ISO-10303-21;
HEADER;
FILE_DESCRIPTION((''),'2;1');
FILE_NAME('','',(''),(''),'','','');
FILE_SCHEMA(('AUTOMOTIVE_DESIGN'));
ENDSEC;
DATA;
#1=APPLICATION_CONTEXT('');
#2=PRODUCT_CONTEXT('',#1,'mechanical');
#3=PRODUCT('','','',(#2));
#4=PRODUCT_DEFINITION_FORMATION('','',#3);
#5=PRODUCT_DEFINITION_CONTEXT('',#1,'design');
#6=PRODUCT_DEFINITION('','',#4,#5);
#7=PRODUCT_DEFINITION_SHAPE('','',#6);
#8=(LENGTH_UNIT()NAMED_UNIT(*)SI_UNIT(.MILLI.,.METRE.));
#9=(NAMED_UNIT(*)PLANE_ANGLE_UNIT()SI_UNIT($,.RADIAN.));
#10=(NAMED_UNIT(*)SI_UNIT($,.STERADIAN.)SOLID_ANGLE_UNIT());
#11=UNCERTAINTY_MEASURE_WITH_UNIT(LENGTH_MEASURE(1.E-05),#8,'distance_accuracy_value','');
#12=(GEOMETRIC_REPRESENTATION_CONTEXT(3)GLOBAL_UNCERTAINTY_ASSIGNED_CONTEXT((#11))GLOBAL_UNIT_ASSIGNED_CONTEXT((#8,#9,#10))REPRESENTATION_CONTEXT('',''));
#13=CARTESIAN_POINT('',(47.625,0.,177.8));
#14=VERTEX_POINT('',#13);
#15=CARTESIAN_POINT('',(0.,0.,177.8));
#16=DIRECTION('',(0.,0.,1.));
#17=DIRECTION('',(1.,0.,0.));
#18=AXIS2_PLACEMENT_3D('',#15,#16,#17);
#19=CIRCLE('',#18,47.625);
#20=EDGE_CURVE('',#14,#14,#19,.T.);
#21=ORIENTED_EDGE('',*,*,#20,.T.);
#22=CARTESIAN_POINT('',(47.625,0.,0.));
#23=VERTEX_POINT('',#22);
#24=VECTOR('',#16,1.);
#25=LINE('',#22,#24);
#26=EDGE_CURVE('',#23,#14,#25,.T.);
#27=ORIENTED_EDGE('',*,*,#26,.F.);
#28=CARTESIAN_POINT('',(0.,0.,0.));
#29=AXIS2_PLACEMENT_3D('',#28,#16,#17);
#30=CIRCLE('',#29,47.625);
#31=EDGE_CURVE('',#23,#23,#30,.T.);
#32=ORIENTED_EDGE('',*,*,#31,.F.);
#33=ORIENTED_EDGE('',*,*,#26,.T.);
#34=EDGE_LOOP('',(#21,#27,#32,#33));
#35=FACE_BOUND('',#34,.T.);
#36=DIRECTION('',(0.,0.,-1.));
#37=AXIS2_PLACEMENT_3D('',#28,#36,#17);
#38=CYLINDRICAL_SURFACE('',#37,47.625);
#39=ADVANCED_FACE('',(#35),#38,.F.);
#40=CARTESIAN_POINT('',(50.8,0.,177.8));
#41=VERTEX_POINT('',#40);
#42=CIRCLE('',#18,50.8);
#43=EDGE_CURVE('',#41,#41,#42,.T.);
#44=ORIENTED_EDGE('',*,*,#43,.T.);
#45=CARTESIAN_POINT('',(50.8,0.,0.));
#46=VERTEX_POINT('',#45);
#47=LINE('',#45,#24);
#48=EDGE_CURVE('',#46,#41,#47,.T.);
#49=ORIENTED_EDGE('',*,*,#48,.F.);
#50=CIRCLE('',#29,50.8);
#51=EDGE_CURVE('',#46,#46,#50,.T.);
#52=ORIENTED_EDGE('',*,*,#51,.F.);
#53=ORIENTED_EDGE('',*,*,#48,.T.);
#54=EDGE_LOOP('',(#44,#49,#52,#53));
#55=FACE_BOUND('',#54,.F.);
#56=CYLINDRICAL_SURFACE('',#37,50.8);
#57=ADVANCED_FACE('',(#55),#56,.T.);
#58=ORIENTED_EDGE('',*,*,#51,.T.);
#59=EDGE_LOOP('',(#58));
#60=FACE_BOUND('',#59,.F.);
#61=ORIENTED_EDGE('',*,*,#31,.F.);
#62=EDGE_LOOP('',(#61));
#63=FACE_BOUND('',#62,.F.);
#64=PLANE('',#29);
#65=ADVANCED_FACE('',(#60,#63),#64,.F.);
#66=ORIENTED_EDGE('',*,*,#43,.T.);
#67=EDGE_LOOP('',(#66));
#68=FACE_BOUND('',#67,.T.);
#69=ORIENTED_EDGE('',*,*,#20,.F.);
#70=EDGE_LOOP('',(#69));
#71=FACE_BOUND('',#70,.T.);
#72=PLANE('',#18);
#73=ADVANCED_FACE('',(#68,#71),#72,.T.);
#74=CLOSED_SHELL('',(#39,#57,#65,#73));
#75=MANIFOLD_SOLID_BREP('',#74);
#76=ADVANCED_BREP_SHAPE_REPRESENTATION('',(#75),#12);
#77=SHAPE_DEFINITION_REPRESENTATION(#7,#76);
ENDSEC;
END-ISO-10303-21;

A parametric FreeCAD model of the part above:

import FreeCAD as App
import Part
import Sketcher

V = App.Vector
Q = App.Units.Quantity

doc = App.newDocument("Part")
params = doc.addObject("Spreadsheet::Sheet", "Params")
for row, (alias, value) in enumerate([
    ("sketch1_diameter", "4 in"),
    ("sketch1_diameter2", "3.75 in"),
    ("pad1_length", "7 in"),
], start=1):
    params.set(f"A{row}", alias)
    params.set(f"B{row}", "=" + value)
    params.setAlias(f"B{row}", alias)

body = doc.addObject("PartDesign::Body", "Body")

# Sketch on XY plane
sketch1 = body.newObject("Sketcher::SketchObject", "Sketch")
sketch1.AttachmentSupport = (doc.getObject("XY_Plane"), [""])
sketch1.MapMode = "FlatFace"
sketch1.addGeometry(Part.Circle(V(0, 0, 0), V(0, 0, 1), 51), False)
sketch1.addGeometry(Part.Circle(V(0, 0, 0), V(0, 0, 1), 48), False)
sketch1.addConstraint(Sketcher.Constraint("Coincident", 0, 3, -1, 1))
sketch1.addConstraint(Sketcher.Constraint("Coincident", 1, 3, -1, 1))
sketch1.addConstraint(Sketcher.Constraint("Diameter", 0, Q("4 in")))
sketch1.addConstraint(Sketcher.Constraint("Diameter", 1, Q("3.75 in")))
sketch1.setExpression("Constraints[2]", "Params.sketch1_diameter")
sketch1.setExpression("Constraints[3]", "Params.sketch1_diameter2")
pad1 = body.newObject("PartDesign::Pad", "Pad")
pad1.Profile = sketch1
pad1.setExpression("Length", "Params.pad1_length")

doc.recompute()
